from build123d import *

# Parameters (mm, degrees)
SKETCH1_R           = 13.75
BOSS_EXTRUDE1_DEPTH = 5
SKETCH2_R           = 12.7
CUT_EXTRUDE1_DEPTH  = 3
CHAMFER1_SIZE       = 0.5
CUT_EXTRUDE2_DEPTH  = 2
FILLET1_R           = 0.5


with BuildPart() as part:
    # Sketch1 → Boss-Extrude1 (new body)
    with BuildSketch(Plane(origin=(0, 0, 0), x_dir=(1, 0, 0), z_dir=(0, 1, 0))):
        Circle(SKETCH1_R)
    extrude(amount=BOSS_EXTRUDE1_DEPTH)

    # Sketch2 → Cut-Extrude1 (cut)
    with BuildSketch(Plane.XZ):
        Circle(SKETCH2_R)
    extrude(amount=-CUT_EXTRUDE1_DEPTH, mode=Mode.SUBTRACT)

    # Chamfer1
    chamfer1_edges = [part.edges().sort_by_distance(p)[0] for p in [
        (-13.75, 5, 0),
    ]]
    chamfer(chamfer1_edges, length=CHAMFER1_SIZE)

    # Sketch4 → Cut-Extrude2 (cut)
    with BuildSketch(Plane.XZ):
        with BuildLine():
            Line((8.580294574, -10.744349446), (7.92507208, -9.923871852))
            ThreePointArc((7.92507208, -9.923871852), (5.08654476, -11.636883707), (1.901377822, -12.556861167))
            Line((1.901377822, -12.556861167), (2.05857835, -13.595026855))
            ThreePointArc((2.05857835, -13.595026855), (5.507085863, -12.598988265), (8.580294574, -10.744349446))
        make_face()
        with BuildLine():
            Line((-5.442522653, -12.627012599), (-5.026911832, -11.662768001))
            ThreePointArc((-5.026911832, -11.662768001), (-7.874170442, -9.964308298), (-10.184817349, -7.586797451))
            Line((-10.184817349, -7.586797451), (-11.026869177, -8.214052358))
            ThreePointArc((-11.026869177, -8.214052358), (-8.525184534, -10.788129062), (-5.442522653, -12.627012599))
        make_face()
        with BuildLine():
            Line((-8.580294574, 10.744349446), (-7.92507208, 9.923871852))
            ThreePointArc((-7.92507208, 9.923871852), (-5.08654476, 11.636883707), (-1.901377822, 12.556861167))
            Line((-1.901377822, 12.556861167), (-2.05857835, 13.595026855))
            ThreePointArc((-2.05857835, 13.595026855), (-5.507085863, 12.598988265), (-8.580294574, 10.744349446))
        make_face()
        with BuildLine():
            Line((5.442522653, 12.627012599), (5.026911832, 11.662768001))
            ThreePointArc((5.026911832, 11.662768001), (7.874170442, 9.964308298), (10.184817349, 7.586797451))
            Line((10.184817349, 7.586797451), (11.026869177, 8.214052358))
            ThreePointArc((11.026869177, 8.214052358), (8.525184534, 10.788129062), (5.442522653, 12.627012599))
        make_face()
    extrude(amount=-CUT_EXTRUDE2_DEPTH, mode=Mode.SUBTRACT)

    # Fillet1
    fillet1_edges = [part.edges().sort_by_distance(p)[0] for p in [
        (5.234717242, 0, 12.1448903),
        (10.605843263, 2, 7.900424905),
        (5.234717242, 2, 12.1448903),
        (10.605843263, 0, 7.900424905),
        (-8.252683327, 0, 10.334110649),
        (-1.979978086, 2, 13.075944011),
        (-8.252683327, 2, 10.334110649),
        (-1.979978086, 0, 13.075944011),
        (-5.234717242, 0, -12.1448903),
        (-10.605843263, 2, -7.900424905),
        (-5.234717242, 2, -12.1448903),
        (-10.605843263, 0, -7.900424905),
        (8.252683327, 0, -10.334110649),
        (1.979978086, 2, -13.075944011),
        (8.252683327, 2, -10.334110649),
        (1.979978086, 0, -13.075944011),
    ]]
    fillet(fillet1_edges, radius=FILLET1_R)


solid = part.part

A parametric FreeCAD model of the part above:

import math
import FreeCAD as App
import Part
import Sketcher


def edges_at(feature, points):
    """Names of the edges that pass closest to the given points."""
    edges = feature.Shape.Edges
    near = lambda p: min(range(len(edges)), key=lambda i: edges[i].distToShape(Part.Vertex(*p))[0])
    return sorted({f"Edge{near(p) + 1}" for p in points})

doc = App.newDocument("Part")
body = doc.addObject("PartDesign::Body", "Body")

sketch1 = body.newObject("Sketcher::SketchObject", "Sketch")
sketch1.AttachmentSupport = (doc.getObject("XZ_Plane"), [""])
sketch1.MapMode = "FlatFace"
sketch1.addGeometry(Part.Circle(App.Vector(0, 0, 0), App.Vector(0, 0, 1), 14), False)
sketch1.addConstraint([
    Sketcher.Constraint("Coincident", 0, 3, -1, 1),
    Sketcher.Constraint("Diameter", 0, 27.5),
])
pad1 = body.newObject("PartDesign::Pad", "Pad")
pad1.Profile = sketch1
pad1.Length = 5
pad1.Reversed = True

sketch2 = body.newObject("Sketcher::SketchObject", "Sketch001")
sketch2.AttachmentSupport = (doc.getObject("XZ_Plane"), [""])
sketch2.MapMode = "FlatFace"
sketch2.addGeometry(Part.Circle(App.Vector(0, 0, 0), App.Vector(0, 0, 1), 13), False)
sketch2.addConstraint([
    Sketcher.Constraint("Coincident", 0, 3, -1, 1),
    Sketcher.Constraint("Diameter", 0, 25.4),
])
pocket1 = body.newObject("PartDesign::Pocket", "Pocket")
pocket1.Profile = sketch2
pocket1.Length = 3
doc.recompute()

chamfer = body.newObject("PartDesign::Chamfer", "Chamfer")
chamfer.Base = (pocket1, edges_at(pocket1, [(-13.75, 5, 0)]))
chamfer.Size = 0.5

sketch3 = body.newObject("Sketcher::SketchObject", "Sketch002")
sketch3.AttachmentSupport = (doc.getObject("XZ_Plane"), [""])
sketch3.MapMode = "FlatFace"
sketch3.addGeometry([
    Part.LineSegment(App.Vector(8.6, -10.7, 0), App.Vector(7.9, -9.9, 0)),
    Part.ArcOfCircle(Part.Circle(App.Vector(0, 0, 0), App.Vector(0, 0, 1), 12.7), math.radians(-81), math.radians(-51)),
    Part.LineSegment(App.Vector(1.9, -12.6, 0), App.Vector(2.1, -13.6, 0)),
    Part.ArcOfCircle(Part.Circle(App.Vector(0, 0, 0), App.Vector(0, 0, 1), 13.7), math.radians(-81), math.radians(-51)),
    Part.LineSegment(App.Vector(-5.4, -12.6, 0), App.Vector(-5, -11.7, 0)),
    Part.ArcOfCircle(Part.Circle(App.Vector(0, 0, 0), App.Vector(0, 0, 1), 12.7), math.radians(-143), math.radians(-113)),
    Part.LineSegment(App.Vector(-10.2, -7.6, 0), App.Vector(-11, -8.2, 0)),
    Part.ArcOfCircle(Part.Circle(App.Vector(0, 0, 0), App.Vector(0, 0, 1), 13.7), math.radians(-143), math.radians(-113)),
    Part.LineSegment(App.Vector(-8.6, 10.7, 0), App.Vector(-7.9, 9.9, 0)),
    Part.ArcOfCircle(Part.Circle(App.Vector(0, 0, 0), App.Vector(0, 0, 1), 12.7), math.radians(99), math.radians(129)),
    Part.LineSegment(App.Vector(-1.9, 12.6, 0), App.Vector(-2.1, 13.6, 0)),
    Part.ArcOfCircle(Part.Circle(App.Vector(0, 0, 0), App.Vector(0, 0, 1), 13.7), math.radians(99), math.radians(129)),
    Part.LineSegment(App.Vector(5.4, 12.6, 0), App.Vector(5, 11.7, 0)),
    Part.ArcOfCircle(Part.Circle(App.Vector(0, 0, 0), App.Vector(0, 0, 1), 12.7), math.radians(37), math.radians(67)),
    Part.LineSegment(App.Vector(10.2, 7.6, 0), App.Vector(11, 8.2, 0)),
    Part.ArcOfCircle(Part.Circle(App.Vector(0, 0, 0), App.Vector(0, 0, 1), 13.7), math.radians(37), math.radians(67)),
], False)
sketch3.addConstraint([
    Sketcher.Constraint("Coincident", 0, 2, 1, 2),
    Sketcher.Constraint("Coincident", 1, 1, 2, 1),
    Sketcher.Constraint("Coincident", 2, 2, 3, 1),
    Sketcher.Constraint("Coincident", 3, 2, 0, 1),
    Sketcher.Constraint("Coincident", 4, 2, 5, 2),
    Sketcher.Constraint("Coincident", 5, 1, 6, 1),
    Sketcher.Constraint("Coincident", 6, 2, 7, 1),
    Sketcher.Constraint("Coincident", 7, 2, 4, 1),
    Sketcher.Constraint("Coincident", 8, 2, 9, 2),
    Sketcher.Constraint("Coincident", 9, 1, 10, 1),
    Sketcher.Constraint("Coincident", 10, 2, 11, 1),
    Sketcher.Constraint("Coincident", 11, 2, 8, 1),
    Sketcher.Constraint("Coincident", 12, 2, 13, 2),
    Sketcher.Constraint("Coincident", 13, 1, 14, 1),
    Sketcher.Constraint("Coincident", 14, 2, 15, 1),
    Sketcher.Constraint("Coincident", 15, 2, 12, 1),
    Sketcher.Constraint("Coincident", 1, 3, -1, 1),
    Sketcher.Constraint("Coincident", 3, 3, -1, 1),
    Sketcher.Constraint("Coincident", 5, 3, -1, 1),
    Sketcher.Constraint("Coincident", 7, 3, -1, 1),
    Sketcher.Constraint("Coincident", 9, 3, -1, 1),
    Sketcher.Constraint("Coincident", 11, 3, -1, 1),
    Sketcher.Constraint("Coincident", 13, 3, -1, 1),
    Sketcher.Constraint("Coincident", 15, 3, -1, 1),
    Sketcher.Constraint("Equal", 1, 5),
    Sketcher.Constraint("Equal", 3, 7),
    Sketcher.Constraint("Equal", 5, 9),
    Sketcher.Constraint("Equal", 7, 11),
    Sketcher.Constraint("Equal", 9, 13),
    Sketcher.Constraint("Equal", 11, 15),
    Sketcher.Constraint("Parallel", 0, 8),
    Sketcher.Constraint("Parallel", 2, 10),
    Sketcher.Constraint("Parallel", 4, 12),
    Sketcher.Constraint("Parallel", 6, 14),
    Sketcher.Constraint("Radius", 1, 12.7),
    Sketcher.Constraint("Radius", 3, 13.75),
    Sketcher.Constraint("DistanceX", 1, 1, 2, 2, 0.157201),
    Sketcher.Constraint("DistanceX", 7, 2, 1, 1, 7.3439),
    Sketcher.Constraint("DistanceX", 9, 1, 15, 2, 7.3439),
    Sketcher.Constraint("DistanceY", 0, 2, -1, 1, 9.923872),
    Sketcher.Constraint("DistanceY", 1, 1, -1, 1, 12.556861),
    Sketcher.Constraint("DistanceY", 3, 2, -1, 1, 10.744349),
    Sketcher.Constraint("DistanceX", 4, 2, -1, 1, 5.026912),
    Sketcher.Constraint("DistanceX", 6, 2, -1, 1, 11.026869),
    Sketcher.Constraint("DistanceY", -1, 1, 8, 2, 9.923872),
    Sketcher.Constraint("DistanceY", -1, 1, 9, 1, 12.556861),
    Sketcher.Constraint("DistanceX", -1, 1, 14, 2, 11.026869),
    Sketcher.Constraint("DistanceY", 4, 2, 5, 1, 4.075971),
])
pocket2 = body.newObject("PartDesign::Pocket", "Pocket001")
pocket2.Profile = sketch3
pocket2.Length = 2
doc.recompute()

fillet = body.newObject("PartDesign::Fillet", "Fillet")
fillet.Base = (pocket2, edges_at(pocket2, [
    (5.235, 0, 12.145),
    (10.606, 2, 7.9),
    (5.235, 2, 12.145),
    (10.606, 0, 7.9),
    (-8.253, 0, 10.334),
    (-1.98, 2, 13.076),
    (-8.253, 2, 10.334),
    (-1.98, 0, 13.076),
    (-5.235, 0, -12.145),
    (-10.606, 2, -7.9),
    (-5.235, 2, -12.145),
    (-10.606, 0, -7.9),
    (8.253, 0, -10.334),
    (1.98, 2, -13.076),
    (8.253, 2, -10.334),
    (1.98, 0, -13.076),
]))
fillet.Radius = 0.5

doc.recompute()
